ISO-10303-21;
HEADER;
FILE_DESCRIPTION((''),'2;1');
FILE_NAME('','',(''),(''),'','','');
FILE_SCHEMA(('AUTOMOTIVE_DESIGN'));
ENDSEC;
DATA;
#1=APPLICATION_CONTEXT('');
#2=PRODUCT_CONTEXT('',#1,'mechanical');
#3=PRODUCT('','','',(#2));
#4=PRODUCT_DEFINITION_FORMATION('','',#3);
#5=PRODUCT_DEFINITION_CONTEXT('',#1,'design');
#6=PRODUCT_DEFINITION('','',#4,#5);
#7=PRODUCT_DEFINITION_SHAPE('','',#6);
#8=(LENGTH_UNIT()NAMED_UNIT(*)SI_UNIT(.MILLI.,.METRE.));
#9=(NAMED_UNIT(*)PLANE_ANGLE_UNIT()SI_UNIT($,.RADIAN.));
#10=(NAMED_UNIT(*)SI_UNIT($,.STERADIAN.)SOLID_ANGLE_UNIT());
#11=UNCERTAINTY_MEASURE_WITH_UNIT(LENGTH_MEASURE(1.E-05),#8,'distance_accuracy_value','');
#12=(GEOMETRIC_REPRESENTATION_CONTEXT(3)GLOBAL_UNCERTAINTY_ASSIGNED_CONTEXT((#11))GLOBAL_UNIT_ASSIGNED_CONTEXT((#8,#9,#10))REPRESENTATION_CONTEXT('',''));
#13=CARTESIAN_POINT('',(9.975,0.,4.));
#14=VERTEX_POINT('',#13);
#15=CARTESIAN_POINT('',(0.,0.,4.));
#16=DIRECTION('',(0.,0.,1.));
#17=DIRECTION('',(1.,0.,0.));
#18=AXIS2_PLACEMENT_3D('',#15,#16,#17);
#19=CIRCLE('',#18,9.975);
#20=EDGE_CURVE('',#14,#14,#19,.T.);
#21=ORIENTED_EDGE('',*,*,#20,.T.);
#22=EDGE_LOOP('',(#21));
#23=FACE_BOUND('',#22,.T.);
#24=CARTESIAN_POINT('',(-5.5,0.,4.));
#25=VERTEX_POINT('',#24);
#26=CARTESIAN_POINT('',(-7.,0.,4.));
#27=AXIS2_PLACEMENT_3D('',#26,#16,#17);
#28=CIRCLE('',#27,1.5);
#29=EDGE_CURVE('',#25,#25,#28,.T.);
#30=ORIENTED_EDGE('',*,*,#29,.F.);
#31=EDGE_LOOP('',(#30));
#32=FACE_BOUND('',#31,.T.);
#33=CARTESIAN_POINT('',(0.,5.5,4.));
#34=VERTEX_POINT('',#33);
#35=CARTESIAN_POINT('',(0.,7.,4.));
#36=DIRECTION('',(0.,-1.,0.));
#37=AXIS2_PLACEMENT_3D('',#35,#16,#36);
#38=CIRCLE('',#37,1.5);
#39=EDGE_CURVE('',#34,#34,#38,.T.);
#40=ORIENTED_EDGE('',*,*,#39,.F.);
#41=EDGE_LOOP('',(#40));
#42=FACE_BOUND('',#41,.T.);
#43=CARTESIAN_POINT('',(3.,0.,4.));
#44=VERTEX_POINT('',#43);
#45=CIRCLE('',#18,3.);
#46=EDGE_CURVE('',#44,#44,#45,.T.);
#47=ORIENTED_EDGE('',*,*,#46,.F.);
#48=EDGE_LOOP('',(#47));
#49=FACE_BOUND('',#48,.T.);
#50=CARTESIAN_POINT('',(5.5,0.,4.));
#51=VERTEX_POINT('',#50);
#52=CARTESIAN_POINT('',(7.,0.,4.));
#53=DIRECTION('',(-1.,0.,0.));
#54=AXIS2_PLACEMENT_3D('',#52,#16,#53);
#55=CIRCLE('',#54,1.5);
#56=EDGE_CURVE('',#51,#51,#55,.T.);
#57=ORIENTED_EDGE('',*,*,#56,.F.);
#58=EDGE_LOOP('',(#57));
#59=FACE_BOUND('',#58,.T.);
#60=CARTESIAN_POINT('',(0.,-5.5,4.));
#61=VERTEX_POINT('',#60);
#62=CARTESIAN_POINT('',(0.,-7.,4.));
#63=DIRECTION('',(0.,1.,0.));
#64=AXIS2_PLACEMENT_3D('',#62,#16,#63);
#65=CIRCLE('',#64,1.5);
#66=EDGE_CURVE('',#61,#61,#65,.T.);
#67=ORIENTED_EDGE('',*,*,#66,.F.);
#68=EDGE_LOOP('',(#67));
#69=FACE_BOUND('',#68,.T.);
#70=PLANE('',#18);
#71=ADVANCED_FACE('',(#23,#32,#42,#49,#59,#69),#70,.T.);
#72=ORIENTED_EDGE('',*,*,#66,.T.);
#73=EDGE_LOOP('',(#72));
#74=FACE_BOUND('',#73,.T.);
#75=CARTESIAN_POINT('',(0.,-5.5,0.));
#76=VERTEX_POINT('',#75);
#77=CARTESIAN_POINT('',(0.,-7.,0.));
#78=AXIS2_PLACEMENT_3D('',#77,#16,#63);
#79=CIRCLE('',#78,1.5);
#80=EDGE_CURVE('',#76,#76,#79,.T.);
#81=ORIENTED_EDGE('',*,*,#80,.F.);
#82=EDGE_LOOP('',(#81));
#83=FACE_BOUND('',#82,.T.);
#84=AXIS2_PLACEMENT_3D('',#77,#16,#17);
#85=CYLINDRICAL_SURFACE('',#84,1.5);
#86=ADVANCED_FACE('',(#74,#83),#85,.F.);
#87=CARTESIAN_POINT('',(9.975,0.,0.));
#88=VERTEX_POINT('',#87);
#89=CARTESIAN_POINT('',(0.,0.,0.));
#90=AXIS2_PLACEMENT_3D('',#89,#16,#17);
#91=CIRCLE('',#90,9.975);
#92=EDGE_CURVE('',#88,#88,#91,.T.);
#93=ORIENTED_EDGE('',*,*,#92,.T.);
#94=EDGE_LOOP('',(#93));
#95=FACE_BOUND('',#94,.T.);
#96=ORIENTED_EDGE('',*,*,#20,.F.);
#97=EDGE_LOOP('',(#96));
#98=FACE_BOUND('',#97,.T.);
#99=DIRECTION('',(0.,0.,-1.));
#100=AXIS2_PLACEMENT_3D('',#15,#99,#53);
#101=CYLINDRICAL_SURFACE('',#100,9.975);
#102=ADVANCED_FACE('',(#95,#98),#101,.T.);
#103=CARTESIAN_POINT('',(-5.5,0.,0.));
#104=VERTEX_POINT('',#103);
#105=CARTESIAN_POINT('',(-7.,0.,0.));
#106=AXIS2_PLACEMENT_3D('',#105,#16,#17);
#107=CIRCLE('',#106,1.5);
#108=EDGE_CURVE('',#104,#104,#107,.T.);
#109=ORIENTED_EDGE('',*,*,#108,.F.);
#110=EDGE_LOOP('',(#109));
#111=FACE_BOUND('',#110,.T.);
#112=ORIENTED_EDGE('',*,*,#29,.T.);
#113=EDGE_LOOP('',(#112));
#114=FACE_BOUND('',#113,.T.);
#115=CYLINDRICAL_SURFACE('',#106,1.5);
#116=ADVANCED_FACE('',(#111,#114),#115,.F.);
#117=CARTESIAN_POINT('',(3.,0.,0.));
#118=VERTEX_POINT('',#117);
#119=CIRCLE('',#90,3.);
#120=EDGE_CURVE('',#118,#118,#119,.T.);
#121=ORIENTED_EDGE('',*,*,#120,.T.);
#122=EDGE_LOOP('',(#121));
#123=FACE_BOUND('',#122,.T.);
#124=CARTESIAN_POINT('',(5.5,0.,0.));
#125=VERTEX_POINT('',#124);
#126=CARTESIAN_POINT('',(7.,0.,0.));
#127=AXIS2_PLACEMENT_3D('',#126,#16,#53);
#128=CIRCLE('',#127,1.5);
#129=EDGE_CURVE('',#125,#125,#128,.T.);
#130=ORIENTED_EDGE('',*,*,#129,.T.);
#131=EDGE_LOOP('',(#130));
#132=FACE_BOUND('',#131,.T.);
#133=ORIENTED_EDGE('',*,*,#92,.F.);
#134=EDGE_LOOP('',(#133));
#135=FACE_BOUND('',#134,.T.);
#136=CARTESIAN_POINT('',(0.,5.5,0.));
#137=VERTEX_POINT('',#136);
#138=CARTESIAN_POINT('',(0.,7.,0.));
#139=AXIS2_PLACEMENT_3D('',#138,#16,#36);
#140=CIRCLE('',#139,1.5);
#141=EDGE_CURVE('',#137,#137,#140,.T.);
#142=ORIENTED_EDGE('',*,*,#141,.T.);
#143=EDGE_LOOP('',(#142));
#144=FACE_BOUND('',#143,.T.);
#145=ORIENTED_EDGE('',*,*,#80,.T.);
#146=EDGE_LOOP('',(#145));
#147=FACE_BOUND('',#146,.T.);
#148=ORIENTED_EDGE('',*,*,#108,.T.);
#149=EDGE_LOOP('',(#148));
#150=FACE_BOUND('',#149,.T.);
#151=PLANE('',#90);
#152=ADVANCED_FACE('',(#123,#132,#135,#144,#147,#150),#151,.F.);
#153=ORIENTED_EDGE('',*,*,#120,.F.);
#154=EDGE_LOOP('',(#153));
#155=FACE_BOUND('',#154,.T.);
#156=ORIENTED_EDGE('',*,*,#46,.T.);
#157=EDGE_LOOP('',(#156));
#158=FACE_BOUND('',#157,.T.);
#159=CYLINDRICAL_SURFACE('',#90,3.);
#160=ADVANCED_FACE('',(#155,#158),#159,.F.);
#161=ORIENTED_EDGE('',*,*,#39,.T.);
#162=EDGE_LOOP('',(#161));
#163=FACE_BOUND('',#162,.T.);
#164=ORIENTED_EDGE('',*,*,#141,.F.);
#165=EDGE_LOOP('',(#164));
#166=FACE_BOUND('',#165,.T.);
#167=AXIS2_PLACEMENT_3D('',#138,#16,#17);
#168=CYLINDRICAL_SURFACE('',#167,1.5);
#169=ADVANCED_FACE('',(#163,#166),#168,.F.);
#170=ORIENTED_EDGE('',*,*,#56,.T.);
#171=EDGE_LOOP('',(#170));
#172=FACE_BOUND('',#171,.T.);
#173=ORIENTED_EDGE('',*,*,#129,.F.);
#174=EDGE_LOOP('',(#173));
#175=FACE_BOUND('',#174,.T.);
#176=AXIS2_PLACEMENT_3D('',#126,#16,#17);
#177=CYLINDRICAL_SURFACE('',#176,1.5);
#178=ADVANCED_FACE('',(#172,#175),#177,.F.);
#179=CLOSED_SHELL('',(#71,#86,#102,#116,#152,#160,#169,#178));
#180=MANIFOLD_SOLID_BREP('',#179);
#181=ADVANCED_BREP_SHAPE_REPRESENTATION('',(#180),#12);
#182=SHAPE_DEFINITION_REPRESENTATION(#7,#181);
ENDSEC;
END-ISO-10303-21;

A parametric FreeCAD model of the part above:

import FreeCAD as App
import Part
import Sketcher
from FreeCAD import Vector

doc = App.newDocument("Part")
body = doc.addObject("PartDesign::Body", "Body")

sketch1 = body.newObject("Sketcher::SketchObject", "Sketch")
sketch1.AttachmentSupport = (doc.getObject("XY_Plane"), [""])
sketch1.MapMode = "FlatFace"
sketch1.addGeometry(Part.Circle(Vector(0, 0, 0), Vector(0, 0, 1), 9.975), False)
sketch1.addConstraint(Sketcher.Constraint("Coincident", 0, 3, -1, 1))
sketch1.addConstraint(Sketcher.Constraint("Diameter", 0, 19.95))
pad1 = body.newObject("PartDesign::Pad", "Pad")
pad1.Profile = sketch1
pad1.Length = 4

sketch2 = body.newObject("Sketcher::SketchObject", "Sketch001")
sketch2.AttachmentSupport = (doc.getObject("XY_Plane"), [""])
sketch2.MapMode = "FlatFace"
sketch2.AttachmentOffset = App.Placement(Vector(0, 0, 4), App.Rotation())
sketch2.addGeometry(Part.Circle(Vector(-7, 0, 0), Vector(0, 0, 1), 1.5), False)
sketch2.addConstraint(Sketcher.Constraint("PointOnObject", 0, 3, -1))
sketch2.addConstraint(Sketcher.Constraint("Diameter", 0, 3.0))
sketch2.addConstraint(Sketcher.Constraint("DistanceX", 0, 3, -1, 1, 7.0))
pocket1 = body.newObject("PartDesign::Pocket", "Pocket")
pocket1.Profile = sketch2
pocket1.Type = "ThroughAll"
doc.recompute()

polarpattern = body.newObject("PartDesign::PolarPattern", "PolarPattern")
polarpattern.Originals = [pocket1]
polarpattern.Axis = (doc.getObject("Z_Axis"), [""])
polarpattern.Angle = 360
polarpattern.Occurrences = 4
body.Tip = polarpattern

sketch3 = body.newObject("Sketcher::SketchObject", "Sketch002")
sketch3.AttachmentSupport = (doc.getObject("XY_Plane"), [""])
sketch3.MapMode = "FlatFace"
sketch3.AttachmentOffset = App.Placement(Vector(0, 0, 4), App.Rotation())
sketch3.addGeometry(Part.Circle(Vector(0, 0, 0), Vector(0, 0, 1), 3), False)
sketch3.addConstraint(Sketcher.Constraint("Coincident", 0, 3, -1, 1))
sketch3.addConstraint(Sketcher.Constraint("Diameter", 0, 6.0))
pocket2 = body.newObject("PartDesign::Pocket", "Pocket001")
pocket2.Profile = sketch3
pocket2.Type = "ThroughAll"

doc.recompute()
